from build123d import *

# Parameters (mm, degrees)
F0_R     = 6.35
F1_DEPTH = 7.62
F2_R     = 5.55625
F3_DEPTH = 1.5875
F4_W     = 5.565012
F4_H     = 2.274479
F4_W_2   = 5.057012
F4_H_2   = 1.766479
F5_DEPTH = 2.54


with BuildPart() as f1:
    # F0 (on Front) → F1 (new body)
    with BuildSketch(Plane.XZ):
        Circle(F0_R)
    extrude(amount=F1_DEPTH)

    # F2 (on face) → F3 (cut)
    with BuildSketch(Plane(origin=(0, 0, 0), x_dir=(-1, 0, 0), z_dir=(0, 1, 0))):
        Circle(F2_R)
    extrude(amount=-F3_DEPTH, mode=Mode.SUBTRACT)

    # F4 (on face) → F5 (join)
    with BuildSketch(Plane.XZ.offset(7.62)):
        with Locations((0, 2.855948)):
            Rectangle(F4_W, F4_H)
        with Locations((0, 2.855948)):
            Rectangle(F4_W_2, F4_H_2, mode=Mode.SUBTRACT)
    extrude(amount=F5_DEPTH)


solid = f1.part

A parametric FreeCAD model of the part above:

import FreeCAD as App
import Part
import Sketcher
from FreeCAD import Vector
Q = App.Units.Quantity


def add_polygon(sketch, points):
    """Adds a closed chain of lines whose ends are joined by coincident constraints."""
    first, n = sketch.GeometryCount, len(points)
    for a, b in zip(points, points[1:] + points[:1]):
        sketch.addGeometry(Part.LineSegment(App.Vector(*a, 0), App.Vector(*b, 0)), False)
    for i in range(n):
        sketch.addConstraint(Sketcher.Constraint("Coincident", first + i, 2, first + (i + 1) % n, 1))

doc = App.newDocument("Part")
body = doc.addObject("PartDesign::Body", "Body")

sketch1 = body.newObject("Sketcher::SketchObject", "Sketch")
sketch1.AttachmentSupport = (doc.getObject("XZ_Plane"), [""])
sketch1.MapMode = "FlatFace"
sketch1.addGeometry(Part.Circle(Vector(0, 0, 0), Vector(0, 0, 1), 6), False)
sketch1.addConstraint([
    Sketcher.Constraint("Coincident", 0, 3, -1, 1),
    Sketcher.Constraint("Diameter", 0, Q("0.5 in")),
])
pad1 = body.newObject("PartDesign::Pad", "Pad")
pad1.Profile = sketch1
pad1.Length = Q("0.3 in")

sketch2 = body.newObject("Sketcher::SketchObject", "Sketch001")
sketch2.AttachmentSupport = (doc.getObject("XZ_Plane"), [""])
sketch2.MapMode = "FlatFace"
sketch2.addGeometry(Part.Circle(Vector(0, 0, 0), Vector(0, 0, 1), 6), False)
sketch2.addConstraint([
    Sketcher.Constraint("Coincident", 0, 3, -1, 1),
    Sketcher.Constraint("Diameter", 0, Q("0.4375 in")),
])
pocket1 = body.newObject("PartDesign::Pocket", "Pocket")
pocket1.Profile = sketch2
pocket1.Length = Q("0.0625 in")
pocket1.Reversed = True

sketch3 = body.newObject("Sketcher::SketchObject", "Sketch002")
sketch3.AttachmentSupport = (doc.getObject("XZ_Plane"), [""])
sketch3.MapMode = "FlatFace"
sketch3.AttachmentOffset = App.Placement(Vector(0, 0, 0.3 * 25.4), App.Rotation())
add_polygon(sketch3, [(-2.8, 4), (-2.8, 1.7), (2.8, 1.7), (2.8, 4)])
add_polygon(sketch3, [(2.5, 2), (-2.5, 2), (-2.5, 3.7), (2.5, 3.7)])
sketch3.addConstraint([
    Sketcher.Constraint("Vertical", 0),
    Sketcher.Constraint("Horizontal", 1),
    Sketcher.Constraint("Vertical", 2),
    Sketcher.Constraint("Horizontal", 3),
    Sketcher.Constraint("Horizontal", 4),
    Sketcher.Constraint("Vertical", 5),
    Sketcher.Constraint("Horizontal", 6),
    Sketcher.Constraint("Vertical", 7),
    Sketcher.Constraint("DistanceX", 0, 2, 4, 2, Q("0.01 in")),
    Sketcher.Constraint("DistanceY", 0, 2, 4, 2, Q("0.01 in")),
    Sketcher.Constraint("DistanceY", 5, 2, 3, 2, Q("0.01 in")),
    Sketcher.Constraint("DistanceX", 6, 2, 2, 2, Q("0.01 in")),
    Sketcher.Constraint("DistanceY", 0, 2, 0, 1, 2.274479),
    Sketcher.Constraint("DistanceX", 1, 1, 1, 2, 5.565012),
    Sketcher.Constraint("DistanceY", -1, 1, 0, 2, 1.718708),
    Sketcher.Constraint("DistanceX", 0, 2, -1, 1, 2.782506),
])
pad2 = body.newObject("PartDesign::Pad", "Pad001")
pad2.Profile = sketch3
pad2.Length = Q("0.1 in")

doc.recompute()
